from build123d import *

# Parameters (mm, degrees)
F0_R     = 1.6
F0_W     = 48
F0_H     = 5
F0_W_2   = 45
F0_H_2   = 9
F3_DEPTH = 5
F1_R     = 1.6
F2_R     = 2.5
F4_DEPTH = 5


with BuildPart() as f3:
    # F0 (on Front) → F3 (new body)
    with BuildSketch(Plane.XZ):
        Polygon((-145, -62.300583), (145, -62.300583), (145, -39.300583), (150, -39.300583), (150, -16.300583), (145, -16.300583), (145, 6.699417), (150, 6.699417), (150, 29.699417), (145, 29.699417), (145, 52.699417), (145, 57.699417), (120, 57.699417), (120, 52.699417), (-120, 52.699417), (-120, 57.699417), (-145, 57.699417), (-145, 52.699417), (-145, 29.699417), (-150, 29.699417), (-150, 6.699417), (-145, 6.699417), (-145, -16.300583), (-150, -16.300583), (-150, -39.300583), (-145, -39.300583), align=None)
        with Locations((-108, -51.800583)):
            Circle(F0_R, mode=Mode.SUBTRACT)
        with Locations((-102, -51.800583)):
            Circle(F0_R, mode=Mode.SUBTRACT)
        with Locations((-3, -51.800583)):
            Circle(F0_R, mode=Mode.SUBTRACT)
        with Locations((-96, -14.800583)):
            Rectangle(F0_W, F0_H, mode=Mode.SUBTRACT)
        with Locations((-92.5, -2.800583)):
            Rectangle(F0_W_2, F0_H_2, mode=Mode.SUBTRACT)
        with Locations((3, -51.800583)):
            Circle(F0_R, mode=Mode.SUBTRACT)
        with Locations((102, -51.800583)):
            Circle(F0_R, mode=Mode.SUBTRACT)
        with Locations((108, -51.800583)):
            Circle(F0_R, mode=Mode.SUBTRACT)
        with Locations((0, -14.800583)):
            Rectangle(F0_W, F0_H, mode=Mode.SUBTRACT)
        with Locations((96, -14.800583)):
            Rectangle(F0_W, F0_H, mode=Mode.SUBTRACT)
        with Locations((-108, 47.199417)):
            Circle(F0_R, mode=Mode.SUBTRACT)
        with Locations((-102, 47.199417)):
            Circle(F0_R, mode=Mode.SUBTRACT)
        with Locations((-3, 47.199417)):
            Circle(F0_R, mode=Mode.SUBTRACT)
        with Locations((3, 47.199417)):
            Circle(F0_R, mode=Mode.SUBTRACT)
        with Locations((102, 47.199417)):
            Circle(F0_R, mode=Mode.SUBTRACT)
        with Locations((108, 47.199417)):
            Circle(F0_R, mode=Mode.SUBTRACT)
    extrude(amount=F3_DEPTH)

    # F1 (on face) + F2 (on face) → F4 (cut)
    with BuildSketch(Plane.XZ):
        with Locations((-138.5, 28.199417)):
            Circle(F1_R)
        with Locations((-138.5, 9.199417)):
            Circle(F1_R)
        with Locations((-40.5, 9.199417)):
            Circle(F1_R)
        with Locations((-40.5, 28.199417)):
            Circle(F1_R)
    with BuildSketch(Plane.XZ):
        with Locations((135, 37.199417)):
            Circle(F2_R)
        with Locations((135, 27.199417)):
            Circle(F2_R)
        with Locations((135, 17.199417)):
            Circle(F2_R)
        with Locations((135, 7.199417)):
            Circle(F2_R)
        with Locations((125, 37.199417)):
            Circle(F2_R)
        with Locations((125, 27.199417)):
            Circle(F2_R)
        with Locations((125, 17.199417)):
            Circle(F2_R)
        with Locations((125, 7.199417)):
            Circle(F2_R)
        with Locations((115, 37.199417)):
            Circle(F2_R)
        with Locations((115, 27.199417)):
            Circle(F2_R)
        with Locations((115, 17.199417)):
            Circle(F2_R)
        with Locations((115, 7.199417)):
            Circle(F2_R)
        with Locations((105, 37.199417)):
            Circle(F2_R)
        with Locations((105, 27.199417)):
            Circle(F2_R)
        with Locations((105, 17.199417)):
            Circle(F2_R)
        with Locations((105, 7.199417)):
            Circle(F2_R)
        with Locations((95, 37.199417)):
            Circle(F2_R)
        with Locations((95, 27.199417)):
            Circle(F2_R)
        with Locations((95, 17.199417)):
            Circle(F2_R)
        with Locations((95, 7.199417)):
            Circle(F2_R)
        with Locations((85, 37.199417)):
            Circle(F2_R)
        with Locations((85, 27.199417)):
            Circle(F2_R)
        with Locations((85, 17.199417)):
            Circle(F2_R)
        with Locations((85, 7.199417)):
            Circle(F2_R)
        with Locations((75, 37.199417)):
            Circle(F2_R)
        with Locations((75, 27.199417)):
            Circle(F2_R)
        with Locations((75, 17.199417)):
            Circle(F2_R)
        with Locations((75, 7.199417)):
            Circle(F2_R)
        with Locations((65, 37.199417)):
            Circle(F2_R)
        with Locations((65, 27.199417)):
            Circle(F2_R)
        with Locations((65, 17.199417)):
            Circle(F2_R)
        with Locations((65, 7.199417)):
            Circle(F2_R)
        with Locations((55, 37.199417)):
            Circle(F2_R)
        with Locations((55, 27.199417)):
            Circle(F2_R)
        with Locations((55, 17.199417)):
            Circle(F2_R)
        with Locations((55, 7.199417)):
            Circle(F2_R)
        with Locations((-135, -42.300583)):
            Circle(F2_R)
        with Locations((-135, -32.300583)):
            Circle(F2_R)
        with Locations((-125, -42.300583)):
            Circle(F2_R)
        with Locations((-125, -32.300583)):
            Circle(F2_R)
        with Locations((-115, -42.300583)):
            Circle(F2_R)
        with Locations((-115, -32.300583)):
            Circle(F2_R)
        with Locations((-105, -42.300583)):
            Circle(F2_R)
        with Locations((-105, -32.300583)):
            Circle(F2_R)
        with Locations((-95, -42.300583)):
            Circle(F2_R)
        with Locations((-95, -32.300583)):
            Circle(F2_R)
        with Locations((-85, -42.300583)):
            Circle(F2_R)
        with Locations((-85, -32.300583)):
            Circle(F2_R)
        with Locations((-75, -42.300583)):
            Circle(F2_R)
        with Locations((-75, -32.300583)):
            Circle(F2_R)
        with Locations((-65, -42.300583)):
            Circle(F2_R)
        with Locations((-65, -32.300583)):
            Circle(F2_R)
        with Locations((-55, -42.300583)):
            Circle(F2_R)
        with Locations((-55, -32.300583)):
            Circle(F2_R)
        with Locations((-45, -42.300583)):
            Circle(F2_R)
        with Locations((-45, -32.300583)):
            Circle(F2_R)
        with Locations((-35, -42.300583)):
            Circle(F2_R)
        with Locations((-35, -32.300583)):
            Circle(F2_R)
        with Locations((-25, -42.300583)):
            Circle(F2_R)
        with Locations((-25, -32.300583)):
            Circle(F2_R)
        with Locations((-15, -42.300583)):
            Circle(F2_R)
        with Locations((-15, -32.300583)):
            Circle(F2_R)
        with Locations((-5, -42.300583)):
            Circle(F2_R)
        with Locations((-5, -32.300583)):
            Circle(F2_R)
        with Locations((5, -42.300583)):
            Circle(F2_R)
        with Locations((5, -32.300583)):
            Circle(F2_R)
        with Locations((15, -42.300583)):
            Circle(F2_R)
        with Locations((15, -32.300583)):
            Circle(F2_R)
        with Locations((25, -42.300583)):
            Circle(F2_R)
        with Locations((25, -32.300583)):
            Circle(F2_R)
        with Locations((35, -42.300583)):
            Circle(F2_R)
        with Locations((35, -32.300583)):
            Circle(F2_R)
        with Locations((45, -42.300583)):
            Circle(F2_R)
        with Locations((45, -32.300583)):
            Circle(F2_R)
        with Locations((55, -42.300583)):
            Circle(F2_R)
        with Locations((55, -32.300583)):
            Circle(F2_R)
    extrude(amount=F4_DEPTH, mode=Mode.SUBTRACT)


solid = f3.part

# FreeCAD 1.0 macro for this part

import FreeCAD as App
import Part
import Sketcher

V = App.Vector


def add_polygon(sketch, points):
    """Adds a closed chain of lines whose ends are joined by coincident constraints."""
    first, n = sketch.GeometryCount, len(points)
    for a, b in zip(points, points[1:] + points[:1]):
        sketch.addGeometry(Part.LineSegment(App.Vector(*a, 0), App.Vector(*b, 0)), False)
    for i in range(n):
        sketch.addConstraint(Sketcher.Constraint("Coincident", first + i, 2, first + (i + 1) % n, 1))

doc = App.newDocument("Part")
body = doc.addObject("PartDesign::Body", "Body")

sketch1 = body.newObject("Sketcher::SketchObject", "Sketch")
sketch1.AttachmentSupport = (doc.getObject("XZ_Plane"), [""])
sketch1.MapMode = "FlatFace"
add_polygon(sketch1, [(-145, -62.3), (145, -62.3), (145, -39.3), (150, -39.3), (150, -16.3), (145, -16.3), (145, 6.7), (150, 6.7), (150, 29.7), (145, 29.7), (145, 57.7), (120, 57.7), (120, 52.7), (-120, 52.7), (-120, 57.7), (-145, 57.7), (-145, 29.7), (-150, 29.7), (-150, 6.7), (-145, 6.7), (-145, -16.3), (-150, -16.3), (-150, -39.3), (-145, -39.3)])
sketch1.addGeometry(Part.Circle(V(-108, -51.8, 0), V(0, 0, 1), 1.6), False)
sketch1.addGeometry(Part.Circle(V(-102, -51.8, 0), V(0, 0, 1), 1.6), False)
sketch1.addGeometry(Part.Circle(V(-3, -51.8, 0), V(0, 0, 1), 1.6), False)
add_polygon(sketch1, [(-72, -17.3), (-120, -17.3), (-120, -12.3), (-72, -12.3)])
add_polygon(sketch1, [(-70, -7.3), (-115, -7.3), (-115, 1.7), (-70, 1.7)])
sketch1.addGeometry(Part.Circle(V(3, -51.8, 0), V(0, 0, 1), 1.6), False)
sketch1.addGeometry(Part.Circle(V(102, -51.8, 0), V(0, 0, 1), 1.6), False)
sketch1.addGeometry(Part.Circle(V(108, -51.8, 0), V(0, 0, 1), 1.6), False)
add_polygon(sketch1, [(24, -17.3), (-24, -17.3), (-24, -12.3), (24, -12.3)])
add_polygon(sketch1, [(120, -17.3), (72, -17.3), (72, -12.3), (120, -12.3)])
sketch1.addGeometry(Part.Circle(V(-108, 47.2, 0), V(0, 0, 1), 1.6), False)
sketch1.addGeometry(Part.Circle(V(-102, 47.2, 0), V(0, 0, 1), 1.6), False)
sketch1.addGeometry(Part.Circle(V(-3, 47.2, 0), V(0, 0, 1), 1.6), False)
sketch1.addGeometry(Part.Circle(V(3, 47.2, 0), V(0, 0, 1), 1.6), False)
sketch1.addGeometry(Part.Circle(V(102, 47.2, 0), V(0, 0, 1), 1.6), False)
sketch1.addGeometry(Part.Circle(V(108, 47.2, 0), V(0, 0, 1), 1.6), False)
sketch1.addConstraint([
    Sketcher.Constraint("Horizontal", 0),
    Sketcher.Constraint("Vertical", 1),
    Sketcher.Constraint("Horizontal", 2),
    Sketcher.Constraint("Vertical", 3),
    Sketcher.Constraint("Horizontal", 4),
    Sketcher.Constraint("Vertical", 5),
    Sketcher.Constraint("Horizontal", 6),
    Sketcher.Constraint("Vertical", 7),
    Sketcher.Constraint("Horizontal", 8),
    Sketcher.Constraint("Vertical", 9),
    Sketcher.Constraint("Horizontal", 10),
    Sketcher.Constraint("Vertical", 11),
    Sketcher.Constraint("Horizontal", 12),
    Sketcher.Constraint("Vertical", 13),
    Sketcher.Constraint("Horizontal", 14),
    Sketcher.Constraint("Vertical", 15),
    Sketcher.Constraint("Horizontal", 16),
    Sketcher.Constraint("Vertical", 17),
    Sketcher.Constraint("Horizontal", 18),
    Sketcher.Constraint("Vertical", 19),
    Sketcher.Constraint("Horizontal", 20),
    Sketcher.Constraint("Vertical", 21),
    Sketcher.Constraint("Horizontal", 22),
    Sketcher.Constraint("Vertical", 23),
    Sketcher.Constraint("Horizontal", 27),
    Sketcher.Constraint("Vertical", 28),
    Sketcher.Constraint("Horizontal", 29),
    Sketcher.Constraint("Vertical", 30),
    Sketcher.Constraint("Horizontal", 31),
    Sketcher.Constraint("Vertical", 32),
    Sketcher.Constraint("Horizontal", 33),
    Sketcher.Constraint("Vertical", 34),
    Sketcher.Constraint("Horizontal", 38),
    Sketcher.Constraint("Vertical", 39),
    Sketcher.Constraint("Horizontal", 40),
    Sketcher.Constraint("Vertical", 41),
    Sketcher.Constraint("Horizontal", 42),
    Sketcher.Constraint("Vertical", 43),
    Sketcher.Constraint("Horizontal", 44),
    Sketcher.Constraint("Vertical", 45),
    Sketcher.Constraint("Equal", 24, 25),
    Sketcher.Constraint("Equal", 25, 26),
    Sketcher.Constraint("Equal", 26, 35),
    Sketcher.Constraint("Equal", 35, 36),
    Sketcher.Constraint("Equal", 36, 37),
    Sketcher.Constraint("Equal", 37, 46),
    Sketcher.Constraint("Equal", 46, 47),
    Sketcher.Constraint("Equal", 47, 48),
    Sketcher.Constraint("Equal", 48, 49),
    Sketcher.Constraint("Equal", 49, 50),
    Sketcher.Constraint("Equal", 50, 51),
    Sketcher.Constraint("Symmetric", 26, 3, 35, 3, -2),
    Sketcher.Constraint("Symmetric", 25, 3, 36, 3, -2),
    Sketcher.Constraint("Symmetric", 24, 3, 37, 3, -2),
    Sketcher.Constraint("Symmetric", 48, 3, 49, 3, -2),
    Sketcher.Constraint("Symmetric", 47, 3, 50, 3, -2),
    Sketcher.Constraint("Symmetric", 46, 3, 51, 3, -2),
    Sketcher.Constraint("Symmetric", 10, 2, 13, 2, -2),
    Sketcher.Constraint("Symmetric", 8, 2, 15, 2, -2),
    Sketcher.Constraint("Symmetric", 6, 2, 17, 2, -2),
    Sketcher.Constraint("Symmetric", 4, 2, 19, 2, -2),
    Sketcher.Constraint("Symmetric", 2, 2, 21, 2, -2),
    Sketcher.Constraint("Symmetric", 30, 2, 42, 2, -2),
    Sketcher.Constraint("Symmetric", 28, 2, 44, 2, -2),
    Sketcher.Constraint("Horizontal", 24, 3, 25, 3),
    Sketcher.Constraint("Horizontal", 25, 3, 26, 3),
    Sketcher.Constraint("Horizontal", 46, 3, 47, 3),
    Sketcher.Constraint("Horizontal", 47, 3, 48, 3),
    Sketcher.Constraint("Horizontal", 30, 2, 38, 2),
    Sketcher.Constraint("Horizontal", 29, 2, 39, 2),
    Sketcher.Constraint("Vertical", 24, 3, 46, 3),
    Sketcher.Constraint("Vertical", 25, 3, 47, 3),
    Sketcher.Constraint("Vertical", 26, 3, 48, 3),
    Sketcher.Constraint("Vertical", 1, 2, 4, 2),
    Sketcher.Constraint("Vertical", 3, 2, 6, 2),
    Sketcher.Constraint("Vertical", 5, 2, 8, 2),
    Sketcher.Constraint("Vertical", 19, 2, 22, 2),
    Sketcher.Constraint("Vertical", 13, 2, 27, 2),
    Sketcher.Constraint("Equal", 29, 38),
    Sketcher.Constraint("Equal", 1, 3),
    Sketcher.Constraint("Equal", 3, 5),
    Sketcher.Constraint("Equal", 5, 7),
    Sketcher.Constraint("Equal", 22, 11),
    Sketcher.Constraint("Equal", 13, 28),
    Sketcher.Constraint("Diameter", 24, 3.2),
    Sketcher.Constraint("DistanceX", 0, 1, 0, 2, 290.0),
    Sketcher.Constraint("DistanceX", 2, 1, 2, 2, 5.0),
    Sketcher.Constraint("DistanceX", 10, 2, 10, 1, 25.0),
    Sketcher.Constraint("DistanceX", 27, 2, 27, 1, 48.0),
    Sketcher.Constraint("DistanceX", 31, 2, 31, 1, 45.0),
    Sketcher.Constraint("DistanceY", 1, 1, 1, 2, 23.0),
    Sketcher.Constraint("DistanceY", 9, 1, 9, 2, 28.0),
    Sketcher.Constraint("DistanceY", 32, 1, 32, 2, 9.0),
    Sketcher.Constraint("DistanceX", 24, 3, -1, 1, 108.0),
    Sketcher.Constraint("DistanceX", 25, 3, -1, 1, 102.0),
    Sketcher.Constraint("DistanceX", 26, 3, -1, 1, 3.0),
    Sketcher.Constraint("DistanceX", 31, 2, -1, 1, 115.0),
    Sketcher.Constraint("DistanceX", 38, 2, -1, 1, 24.0),
    Sketcher.Constraint("DistanceY", 24, 3, 46, 3, 99.0),
    Sketcher.Constraint("DistanceY", 27, 2, 19, 2, 1.0),
    Sketcher.Constraint("DistanceY", 28, 2, 31, 2, 5.0),
    Sketcher.Constraint("DistanceY", 0, 2, 37, 3, 10.5),
    Sketcher.Constraint("DistanceY", 24, 3, -1, 1, 51.800583),
])
pad1 = body.newObject("PartDesign::Pad", "Pad")
pad1.Profile = sketch1
pad1.Length = 5

sketch2 = body.newObject("Sketcher::SketchObject", "Sketch001")
sketch2.AttachmentSupport = (doc.getObject("XZ_Plane"), [""])
sketch2.MapMode = "FlatFace"
sketch2.addGeometry([
    Part.Circle(V(-138.5, 28.2, 0), V(0, 0, 1), 1.6),
    Part.Circle(V(-138.5, 9.2, 0), V(0, 0, 1), 1.6),
    Part.Circle(V(-40.5, 9.2, 0), V(0, 0, 1), 1.6),
    Part.Circle(V(-40.5, 28.2, 0), V(0, 0, 1), 1.6),
    Part.Circle(V(135, 37.2, 0), V(0, 0, 1), 2.5),
    Part.Circle(V(135, 27.2, 0), V(0, 0, 1), 2.5),
    Part.Circle(V(135, 17.2, 0), V(0, 0, 1), 2.5),
    Part.Circle(V(135, 7.2, 0), V(0, 0, 1), 2.5),
    Part.Circle(V(125, 37.2, 0), V(0, 0, 1), 2.5),
    Part.Circle(V(125, 27.2, 0), V(0, 0, 1), 2.5),
    Part.Circle(V(125, 17.2, 0), V(0, 0, 1), 2.5),
    Part.Circle(V(125, 7.2, 0), V(0, 0, 1), 2.5),
    Part.Circle(V(115, 37.2, 0), V(0, 0, 1), 2.5),
    Part.Circle(V(115, 27.2, 0), V(0, 0, 1), 2.5),
    Part.Circle(V(115, 17.2, 0), V(0, 0, 1), 2.5),
    Part.Circle(V(115, 7.2, 0), V(0, 0, 1), 2.5),
    Part.Circle(V(105, 37.2, 0), V(0, 0, 1), 2.5),
    Part.Circle(V(105, 27.2, 0), V(0, 0, 1), 2.5),
    Part.Circle(V(105, 17.2, 0), V(0, 0, 1), 2.5),
    Part.Circle(V(105, 7.2, 0), V(0, 0, 1), 2.5),
    Part.Circle(V(95, 37.2, 0), V(0, 0, 1), 2.5),
    Part.Circle(V(95, 27.2, 0), V(0, 0, 1), 2.5),
    Part.Circle(V(95, 17.2, 0), V(0, 0, 1), 2.5),
    Part.Circle(V(95, 7.2, 0), V(0, 0, 1), 2.5),
    Part.Circle(V(85, 37.2, 0), V(0, 0, 1), 2.5),
    Part.Circle(V(85, 27.2, 0), V(0, 0, 1), 2.5),
    Part.Circle(V(85, 17.2, 0), V(0, 0, 1), 2.5),
    Part.Circle(V(85, 7.2, 0), V(0, 0, 1), 2.5),
    Part.Circle(V(75, 37.2, 0), V(0, 0, 1), 2.5),
    Part.Circle(V(75, 27.2, 0), V(0, 0, 1), 2.5),
    Part.Circle(V(75, 17.2, 0), V(0, 0, 1), 2.5),
    Part.Circle(V(75, 7.2, 0), V(0, 0, 1), 2.5),
    Part.Circle(V(65, 37.2, 0), V(0, 0, 1), 2.5),
    Part.Circle(V(65, 27.2, 0), V(0, 0, 1), 2.5),
    Part.Circle(V(65, 17.2, 0), V(0, 0, 1), 2.5),
    Part.Circle(V(65, 7.2, 0), V(0, 0, 1), 2.5),
    Part.Circle(V(55, 37.2, 0), V(0, 0, 1), 2.5),
    Part.Circle(V(55, 27.2, 0), V(0, 0, 1), 2.5),
    Part.Circle(V(55, 17.2, 0), V(0, 0, 1), 2.5),
    Part.Circle(V(55, 7.2, 0), V(0, 0, 1), 2.5),
    Part.Circle(V(-135, -42.3, 0), V(0, 0, 1), 2.5),
    Part.Circle(V(-135, -32.3, 0), V(0, 0, 1), 2.5),
    Part.Circle(V(-125, -42.3, 0), V(0, 0, 1), 2.5),
    Part.Circle(V(-125, -32.3, 0), V(0, 0, 1), 2.5),
    Part.Circle(V(-115, -42.3, 0), V(0, 0, 1), 2.5),
    Part.Circle(V(-115, -32.3, 0), V(0, 0, 1), 2.5),
    Part.Circle(V(-105, -42.3, 0), V(0, 0, 1), 2.5),
    Part.Circle(V(-105, -32.3, 0), V(0, 0, 1), 2.5),
    Part.Circle(V(-95, -42.3, 0), V(0, 0, 1), 2.5),
    Part.Circle(V(-95, -32.3, 0), V(0, 0, 1), 2.5),
    Part.Circle(V(-85, -42.3, 0), V(0, 0, 1), 2.5),
    Part.Circle(V(-85, -32.3, 0), V(0, 0, 1), 2.5),
    Part.Circle(V(-75, -42.3, 0), V(0, 0, 1), 2.5),
    Part.Circle(V(-75, -32.3, 0), V(0, 0, 1), 2.5),
    Part.Circle(V(-65, -42.3, 0), V(0, 0, 1), 2.5),
    Part.Circle(V(-65, -32.3, 0), V(0, 0, 1), 2.5),
    Part.Circle(V(-55, -42.3, 0), V(0, 0, 1), 2.5),
    Part.Circle(V(-55, -32.3, 0), V(0, 0, 1), 2.5),
    Part.Circle(V(-45, -42.3, 0), V(0, 0, 1), 2.5),
    Part.Circle(V(-45, -32.3, 0), V(0, 0, 1), 2.5),
    Part.Circle(V(-35, -42.3, 0), V(0, 0, 1), 2.5),
    Part.Circle(V(-35, -32.3, 0), V(0, 0, 1), 2.5),
    Part.Circle(V(-25, -42.3, 0), V(0, 0, 1), 2.5),
    Part.Circle(V(-25, -32.3, 0), V(0, 0, 1), 2.5),
    Part.Circle(V(-15, -42.3, 0), V(0, 0, 1), 2.5),
    Part.Circle(V(-15, -32.3, 0), V(0, 0, 1), 2.5),
    Part.Circle(V(-5, -42.3, 0), V(0, 0, 1), 2.5),
    Part.Circle(V(-5, -32.3, 0), V(0, 0, 1), 2.5),
    Part.Circle(V(5, -42.3, 0), V(0, 0, 1), 2.5),
    Part.Circle(V(5, -32.3, 0), V(0, 0, 1), 2.5),
    Part.Circle(V(15, -42.3, 0), V(0, 0, 1), 2.5),
    Part.Circle(V(15, -32.3, 0), V(0, 0, 1), 2.5),
    Part.Circle(V(25, -42.3, 0), V(0, 0, 1), 2.5),
    Part.Circle(V(25, -32.3, 0), V(0, 0, 1), 2.5),
    Part.Circle(V(35, -42.3, 0), V(0, 0, 1), 2.5),
    Part.Circle(V(35, -32.3, 0), V(0, 0, 1), 2.5),
    Part.Circle(V(45, -42.3, 0), V(0, 0, 1), 2.5),
    Part.Circle(V(45, -32.3, 0), V(0, 0, 1), 2.5),
    Part.Circle(V(55, -42.3, 0), V(0, 0, 1), 2.5),
    Part.Circle(V(55, -32.3, 0), V(0, 0, 1), 2.5),
], False)
sketch2.addConstraint([
    Sketcher.Constraint("Equal", 0, 1),
    Sketcher.Constraint("Equal", 1, 2),
    Sketcher.Constraint("Equal", 2, 3),
    Sketcher.Constraint("Equal", 4, 5),
    Sketcher.Constraint("Equal", 5, 6),
    Sketcher.Constraint("Equal", 6, 7),
    Sketcher.Constraint("Equal", 7, 8),
    Sketcher.Constraint("Equal", 8, 9),
    Sketcher.Constraint("Equal", 9, 10),
    Sketcher.Constraint("Equal", 10, 11),
    Sketcher.Constraint("Equal", 11, 12),
    Sketcher.Constraint("Equal", 12, 13),
    Sketcher.Constraint("Equal", 13, 14),
    Sketcher.Constraint("Equal", 14, 15),
    Sketcher.Constraint("Equal", 15, 16),
    Sketcher.Constraint("Equal", 16, 17),
    Sketcher.Constraint("Equal", 17, 18),
    Sketcher.Constraint("Equal", 18, 19),
    Sketcher.Constraint("Equal", 19, 20),
    Sketcher.Constraint("Equal", 20, 21),
    Sketcher.Constraint("Equal", 21, 22),
    Sketcher.Constraint("Equal", 22, 23),
    Sketcher.Constraint("Equal", 23, 24),
    Sketcher.Constraint("Equal", 24, 25),
    Sketcher.Constraint("Equal", 25, 26),
    Sketcher.Constraint("Equal", 26, 27),
    Sketcher.Constraint("Equal", 27, 28),
    Sketcher.Constraint("Equal", 28, 29),
    Sketcher.Constraint("Equal", 29, 30),
    Sketcher.Constraint("Equal", 30, 31),
    Sketcher.Constraint("Equal", 31, 32),
    Sketcher.Constraint("Equal", 32, 33),
    Sketcher.Constraint("Equal", 33, 34),
    Sketcher.Constraint("Equal", 34, 35),
    Sketcher.Constraint("Equal", 35, 36),
    Sketcher.Constraint("Equal", 36, 37),
    Sketcher.Constraint("Equal", 37, 38),
    Sketcher.Constraint("Equal", 38, 39),
    Sketcher.Constraint("Equal", 39, 40),
    Sketcher.Constraint("Equal", 40, 41),
    Sketcher.Constraint("Equal", 41, 42),
    Sketcher.Constraint("Equal", 42, 43),
    Sketcher.Constraint("Equal", 43, 44),
    Sketcher.Constraint("Equal", 44, 45),
    Sketcher.Constraint("Equal", 45, 46),
    Sketcher.Constraint("Equal", 46, 47),
    Sketcher.Constraint("Equal", 47, 48),
    Sketcher.Constraint("Equal", 48, 49),
    Sketcher.Constraint("Equal", 49, 50),
    Sketcher.Constraint("Equal", 50, 51),
    Sketcher.Constraint("Equal", 51, 52),
    Sketcher.Constraint("Equal", 52, 53),
    Sketcher.Constraint("Equal", 53, 54),
    Sketcher.Constraint("Equal", 54, 55),
    Sketcher.Constraint("Equal", 55, 56),
    Sketcher.Constraint("Equal", 56, 57),
    Sketcher.Constraint("Equal", 57, 58),
    Sketcher.Constraint("Equal", 58, 59),
    Sketcher.Constraint("Equal", 59, 60),
    Sketcher.Constraint("Equal", 60, 61),
    Sketcher.Constraint("Equal", 61, 62),
    Sketcher.Constraint("Equal", 62, 63),
    Sketcher.Constraint("Equal", 63, 64),
    Sketcher.Constraint("Equal", 64, 65),
    Sketcher.Constraint("Equal", 65, 66),
    Sketcher.Constraint("Equal", 66, 67),
    Sketcher.Constraint("Equal", 67, 68),
    Sketcher.Constraint("Equal", 68, 69),
    Sketcher.Constraint("Equal", 69, 70),
    Sketcher.Constraint("Equal", 70, 71),
    Sketcher.Constraint("Equal", 71, 72),
    Sketcher.Constraint("Equal", 72, 73),
    Sketcher.Constraint("Equal", 73, 74),
    Sketcher.Constraint("Equal", 74, 75),
    Sketcher.Constraint("Equal", 75, 76),
    Sketcher.Constraint("Equal", 76, 77),
    Sketcher.Constraint("Equal", 77, 78),
    Sketcher.Constraint("Equal", 78, 79),
    Sketcher.Constraint("Symmetric", 66, 3, 68, 3, -2),
    Sketcher.Constraint("Symmetric", 67, 3, 69, 3, -2),
    Sketcher.Constraint("Symmetric", 64, 3, 70, 3, -2),
    Sketcher.Constraint("Symmetric", 65, 3, 71, 3, -2),
    Sketcher.Constraint("Symmetric", 62, 3, 72, 3, -2),
    Sketcher.Constraint("Symmetric", 63, 3, 73, 3, -2),
    Sketcher.Constraint("Symmetric", 60, 3, 74, 3, -2),
    Sketcher.Constraint("Symmetric", 61, 3, 75, 3, -2),
    Sketcher.Constraint("Symmetric", 58, 3, 76, 3, -2),
    Sketcher.Constraint("Symmetric", 59, 3, 77, 3, -2),
    Sketcher.Constraint("Symmetric", 56, 3, 78, 3, -2),
    Sketcher.Constraint("Symmetric", 57, 3, 79, 3, -2),
    Sketcher.Constraint("Horizontal", 1, 3, 2, 3),
    Sketcher.Constraint("Horizontal", 0, 3, 3, 3),
    Sketcher.Constraint("Horizontal", 4, 3, 8, 3),
    Sketcher.Constraint("Horizontal", 5, 3, 9, 3),
    Sketcher.Constraint("Horizontal", 6, 3, 10, 3),
    Sketcher.Constraint("Horizontal", 7, 3, 11, 3),
    Sketcher.Constraint("Horizontal", 8, 3, 12, 3),
    Sketcher.Constraint("Horizontal", 9, 3, 13, 3),
    Sketcher.Constraint("Horizontal", 10, 3, 14, 3),
    Sketcher.Constraint("Horizontal", 11, 3, 15, 3),
    Sketcher.Constraint("Horizontal", 12, 3, 16, 3),
    Sketcher.Constraint("Horizontal", 13, 3, 17, 3),
    Sketcher.Constraint("Horizontal", 14, 3, 18, 3),
    Sketcher.Constraint("Horizontal", 15, 3, 19, 3),
    Sketcher.Constraint("Horizontal", 16, 3, 20, 3),
    Sketcher.Constraint("Horizontal", 17, 3, 21, 3),
    Sketcher.Constraint("Horizontal", 18, 3, 22, 3),
    Sketcher.Constraint("Horizontal", 19, 3, 23, 3),
    Sketcher.Constraint("Horizontal", 20, 3, 24, 3),
    Sketcher.Constraint("Horizontal", 21, 3, 25, 3),
    Sketcher.Constraint("Horizontal", 22, 3, 26, 3),
    Sketcher.Constraint("Horizontal", 23, 3, 27, 3),
    Sketcher.Constraint("Horizontal", 24, 3, 28, 3),
    Sketcher.Constraint("Horizontal", 25, 3, 29, 3),
    Sketcher.Constraint("Horizontal", 26, 3, 30, 3),
    Sketcher.Constraint("Horizontal", 27, 3, 31, 3),
    Sketcher.Constraint("Horizontal", 28, 3, 32, 3),
    Sketcher.Constraint("Horizontal", 29, 3, 33, 3),
    Sketcher.Constraint("Horizontal", 30, 3, 34, 3),
    Sketcher.Constraint("Horizontal", 31, 3, 35, 3),
    Sketcher.Constraint("Horizontal", 32, 3, 36, 3),
    Sketcher.Constraint("Horizontal", 33, 3, 37, 3),
    Sketcher.Constraint("Horizontal", 34, 3, 38, 3),
    Sketcher.Constraint("Horizontal", 35, 3, 39, 3),
    Sketcher.Constraint("Horizontal", 40, 3, 42, 3),
    Sketcher.Constraint("Horizontal", 41, 3, 43, 3),
    Sketcher.Constraint("Horizontal", 42, 3, 44, 3),
    Sketcher.Constraint("Horizontal", 43, 3, 45, 3),
    Sketcher.Constraint("Horizontal", 44, 3, 46, 3),
    Sketcher.Constraint("Horizontal", 45, 3, 47, 3),
    Sketcher.Constraint("Horizontal", 46, 3, 48, 3),
    Sketcher.Constraint("Horizontal", 47, 3, 49, 3),
    Sketcher.Constraint("Horizontal", 48, 3, 50, 3),
    Sketcher.Constraint("Horizontal", 49, 3, 51, 3),
    Sketcher.Constraint("Horizontal", 50, 3, 52, 3),
    Sketcher.Constraint("Horizontal", 51, 3, 53, 3),
    Sketcher.Constraint("Horizontal", 52, 3, 54, 3),
    Sketcher.Constraint("Horizontal", 53, 3, 55, 3),
    Sketcher.Constraint("Horizontal", 54, 3, 56, 3),
    Sketcher.Constraint("Horizontal", 55, 3, 57, 3),
    Sketcher.Constraint("Horizontal", 56, 3, 58, 3),
    Sketcher.Constraint("Horizontal", 57, 3, 59, 3),
    Sketcher.Constraint("Horizontal", 58, 3, 60, 3),
    Sketcher.Constraint("Horizontal", 59, 3, 61, 3),
    Sketcher.Constraint("Horizontal", 60, 3, 62, 3),
    Sketcher.Constraint("Horizontal", 61, 3, 63, 3),
    Sketcher.Constraint("Horizontal", 62, 3, 64, 3),
    Sketcher.Constraint("Horizontal", 63, 3, 65, 3),
    Sketcher.Constraint("Horizontal", 64, 3, 66, 3),
    Sketcher.Constraint("Horizontal", 65, 3, 67, 3),
    Sketcher.Constraint("Vertical", 0, 3, 1, 3),
    Sketcher.Constraint("Vertical", 2, 3, 3, 3),
    Sketcher.Constraint("Vertical", 4, 3, 5, 3),
    Sketcher.Constraint("Vertical", 5, 3, 6, 3),
    Sketcher.Constraint("Vertical", 6, 3, 7, 3),
    Sketcher.Constraint("Vertical", 8, 3, 9, 3),
    Sketcher.Constraint("Vertical", 9, 3, 10, 3),
    Sketcher.Constraint("Vertical", 10, 3, 11, 3),
    Sketcher.Constraint("Vertical", 12, 3, 13, 3),
    Sketcher.Constraint("Vertical", 13, 3, 14, 3),
    Sketcher.Constraint("Vertical", 14, 3, 15, 3),
    Sketcher.Constraint("Vertical", 16, 3, 17, 3),
    Sketcher.Constraint("Vertical", 17, 3, 18, 3),
    Sketcher.Constraint("Vertical", 18, 3, 19, 3),
    Sketcher.Constraint("Vertical", 20, 3, 21, 3),
    Sketcher.Constraint("Vertical", 21, 3, 22, 3),
    Sketcher.Constraint("Vertical", 22, 3, 23, 3),
    Sketcher.Constraint("Vertical", 24, 3, 25, 3),
    Sketcher.Constraint("Vertical", 25, 3, 26, 3),
    Sketcher.Constraint("Vertical", 26, 3, 27, 3),
    Sketcher.Constraint("Vertical", 28, 3, 29, 3),
    Sketcher.Constraint("Vertical", 29, 3, 30, 3),
    Sketcher.Constraint("Vertical", 30, 3, 31, 3),
    Sketcher.Constraint("Vertical", 32, 3, 33, 3),
    Sketcher.Constraint("Vertical", 33, 3, 34, 3),
    Sketcher.Constraint("Vertical", 34, 3, 35, 3),
    Sketcher.Constraint("Vertical", 36, 3, 37, 3),
    Sketcher.Constraint("Vertical", 37, 3, 38, 3),
    Sketcher.Constraint("Vertical", 38, 3, 39, 3),
    Sketcher.Constraint("Vertical", 40, 3, 41, 3),
    Sketcher.Constraint("Vertical", 42, 3, 43, 3),
    Sketcher.Constraint("Vertical", 44, 3, 45, 3),
    Sketcher.Constraint("Vertical", 46, 3, 47, 3),
    Sketcher.Constraint("Vertical", 48, 3, 49, 3),
    Sketcher.Constraint("Vertical", 50, 3, 51, 3),
    Sketcher.Constraint("Vertical", 52, 3, 53, 3),
    Sketcher.Constraint("Vertical", 54, 3, 55, 3),
    Sketcher.Constraint("Vertical", 56, 3, 57, 3),
    Sketcher.Constraint("Vertical", 58, 3, 59, 3),
    Sketcher.Constraint("Vertical", 60, 3, 61, 3),
    Sketcher.Constraint("Vertical", 62, 3, 63, 3),
    Sketcher.Constraint("Vertical", 64, 3, 65, 3),
    Sketcher.Constraint("Vertical", 66, 3, 67, 3),
    Sketcher.Constraint("Vertical", 39, 3, 78, 3),
    Sketcher.Constraint("Diameter", 4, 5.0),
    Sketcher.Constraint("Diameter", 0, 3.2),
    Sketcher.Constraint("DistanceX", -1, 1, 4, 3, 135.0),
    Sketcher.Constraint("DistanceX", -1, 1, 8, 3, 125.0),
    Sketcher.Constraint("DistanceX", -1, 1, 12, 3, 115.0),
    Sketcher.Constraint("DistanceX", -1, 1, 16, 3, 105.0),
    Sketcher.Constraint("DistanceX", -1, 1, 20, 3, 95.0),
    Sketcher.Constraint("DistanceX", -1, 1, 24, 3, 85.0),
    Sketcher.Constraint("DistanceX", -1, 1, 28, 3, 75.0),
    Sketcher.Constraint("DistanceX", -1, 1, 32, 3, 65.0),
    Sketcher.Constraint("DistanceX", -1, 1, 36, 3, 55.0),
    Sketcher.Constraint("DistanceX", 40, 3, -1, 1, 135.0),
    Sketcher.Constraint("DistanceX", 42, 3, -1, 1, 125.0),
    Sketcher.Constraint("DistanceX", 44, 3, -1, 1, 115.0),
    Sketcher.Constraint("DistanceX", 46, 3, -1, 1, 105.0),
    Sketcher.Constraint("DistanceX", 48, 3, -1, 1, 95.0),
    Sketcher.Constraint("DistanceX", 50, 3, -1, 1, 85.0),
    Sketcher.Constraint("DistanceX", 52, 3, -1, 1, 75.0),
    Sketcher.Constraint("DistanceX", 54, 3, -1, 1, 65.0),
    Sketcher.Constraint("DistanceX", 58, 3, -1, 1, 45.0),
    Sketcher.Constraint("DistanceX", 60, 3, -1, 1, 35.0),
    Sketcher.Constraint("DistanceX", 62, 3, -1, 1, 25.0),
    Sketcher.Constraint("DistanceX", 64, 3, -1, 1, 15.0),
    Sketcher.Constraint("DistanceX", 66, 3, -1, 1, 5.0),
    Sketcher.Constraint("DistanceX", 0, 3, -1, 1, 138.5),
    Sketcher.Constraint("DistanceX", 2, 3, -1, 1, 40.5),
    Sketcher.Constraint("DistanceY", -1, 1, 0, 3, 28.199417),
    Sketcher.Constraint("DistanceY", -1, 1, 1, 3, 9.199417),
    Sketcher.Constraint("DistanceY", -1, 1, 4, 3, 37.199417),
    Sketcher.Constraint("DistanceY", -1, 1, 5, 3, 27.199417),
    Sketcher.Constraint("DistanceY", -1, 1, 6, 3, 17.199417),
    Sketcher.Constraint("DistanceY", -1, 1, 7, 3, 7.199417),
    Sketcher.Constraint("DistanceY", 40, 3, -1, 1, 42.300583),
    Sketcher.Constraint("DistanceY", 41, 3, -1, 1, 32.300583),
])
pocket1 = body.newObject("PartDesign::Pocket", "Pocket")
pocket1.Profile = sketch2
pocket1.Length = 5
pocket1.Reversed = True

doc.recompute()
